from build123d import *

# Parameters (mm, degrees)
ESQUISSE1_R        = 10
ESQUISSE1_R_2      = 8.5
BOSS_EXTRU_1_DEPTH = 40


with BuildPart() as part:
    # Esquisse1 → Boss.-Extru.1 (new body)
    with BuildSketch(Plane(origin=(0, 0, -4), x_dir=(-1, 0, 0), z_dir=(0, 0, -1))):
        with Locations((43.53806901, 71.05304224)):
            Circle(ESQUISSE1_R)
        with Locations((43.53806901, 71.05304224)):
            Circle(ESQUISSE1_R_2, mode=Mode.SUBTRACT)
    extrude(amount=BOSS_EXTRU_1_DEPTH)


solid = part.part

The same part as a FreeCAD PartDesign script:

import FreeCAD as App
import Part
import Sketcher

V = App.Vector

doc = App.newDocument("Part")
body = doc.addObject("PartDesign::Body", "Body")

# Sketch on XY plane
sketch1 = doc.addObject("Sketcher::SketchObject", "Sketch")
body.addObject(sketch1)
sketch1.AttachmentSupport = (doc.XY_Plane, [""])
sketch1.MapMode = "FlatFace"
sketch1.AttachmentOffset = App.Placement(V(0, 0, -4), App.Rotation())
sketch1.addGeometry([
    Part.Circle(V(-44, 71, 0), V(0, 0, 1), 10),
    Part.Circle(V(-44, 71, 0), V(0, 0, 1), 8),
], False)
sketch1.addConstraint([
    Sketcher.Constraint("Coincident", 1, 3, 0, 3),
    Sketcher.Constraint("Diameter", 0, 20.0),
    Sketcher.Constraint("Diameter", 1, 17.0),
    Sketcher.Constraint("DistanceX", 0, 3, -1, 1, 43.538069),
    Sketcher.Constraint("DistanceY", -1, 1, 0, 3, 71.053042),
])
pad1 = doc.addObject("PartDesign::Pad", "Pad")
body.addObject(pad1)
pad1.Profile = sketch1
pad1.Length = 40
pad1.Reversed = True

doc.recompute()
